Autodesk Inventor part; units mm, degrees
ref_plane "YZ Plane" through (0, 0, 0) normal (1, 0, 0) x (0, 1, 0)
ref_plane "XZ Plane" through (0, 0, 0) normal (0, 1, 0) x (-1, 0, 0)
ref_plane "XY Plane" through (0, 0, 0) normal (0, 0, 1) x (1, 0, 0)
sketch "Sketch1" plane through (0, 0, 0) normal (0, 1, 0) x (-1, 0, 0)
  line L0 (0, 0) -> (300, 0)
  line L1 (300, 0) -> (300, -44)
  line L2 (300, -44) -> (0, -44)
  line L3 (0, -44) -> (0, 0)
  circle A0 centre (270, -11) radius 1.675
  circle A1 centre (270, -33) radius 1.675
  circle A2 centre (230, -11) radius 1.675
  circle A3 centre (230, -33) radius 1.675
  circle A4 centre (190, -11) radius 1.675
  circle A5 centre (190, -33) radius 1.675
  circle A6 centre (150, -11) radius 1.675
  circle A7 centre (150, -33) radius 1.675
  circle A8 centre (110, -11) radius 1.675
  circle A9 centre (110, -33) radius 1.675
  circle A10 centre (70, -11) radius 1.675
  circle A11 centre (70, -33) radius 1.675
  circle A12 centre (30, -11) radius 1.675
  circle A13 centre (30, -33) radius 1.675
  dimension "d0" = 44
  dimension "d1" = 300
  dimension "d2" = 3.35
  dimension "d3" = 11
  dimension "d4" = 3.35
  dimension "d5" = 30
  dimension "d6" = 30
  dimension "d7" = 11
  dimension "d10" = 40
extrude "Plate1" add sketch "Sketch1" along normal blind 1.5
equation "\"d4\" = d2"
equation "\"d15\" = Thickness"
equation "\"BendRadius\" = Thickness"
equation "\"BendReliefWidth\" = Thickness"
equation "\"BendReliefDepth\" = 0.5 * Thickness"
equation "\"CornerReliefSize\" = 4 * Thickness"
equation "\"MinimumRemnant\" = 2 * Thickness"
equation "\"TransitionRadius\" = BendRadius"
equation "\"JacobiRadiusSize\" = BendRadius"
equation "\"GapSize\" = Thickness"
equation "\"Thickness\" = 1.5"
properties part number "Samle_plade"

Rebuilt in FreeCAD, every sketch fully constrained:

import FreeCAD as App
import Part
import Sketcher


def add_polygon(sketch, points):
    """Adds a closed chain of lines whose ends are joined by coincident constraints."""
    first, n = sketch.GeometryCount, len(points)
    for a, b in zip(points, points[1:] + points[:1]):
        sketch.addGeometry(Part.LineSegment(App.Vector(*a, 0), App.Vector(*b, 0)), False)
    for i in range(n):
        sketch.addConstraint(Sketcher.Constraint("Coincident", first + i, 2, first + (i + 1) % n, 1))

doc = App.newDocument("Part")
body = doc.addObject("PartDesign::Body", "Body")

sketch1 = body.newObject("Sketcher::SketchObject", "Sketch")
sketch1.AttachmentSupport = (doc.getObject("XZ_Plane"), [""])
sketch1.MapMode = "FlatFace"
add_polygon(sketch1, [(-300, 0), (0, 0), (0, -44), (-300, -44)])
sketch1.addGeometry(Part.Circle(App.Vector(-30, -33, 0), App.Vector(0, 0, 1), 1.675), False)
sketch1.addGeometry(Part.Circle(App.Vector(-70, -33, 0), App.Vector(0, 0, 1), 1.675), False)
sketch1.addGeometry(Part.Circle(App.Vector(-110, -33, 0), App.Vector(0, 0, 1), 1.675), False)
sketch1.addGeometry(Part.Circle(App.Vector(-150, -33, 0), App.Vector(0, 0, 1), 1.675), False)
sketch1.addGeometry(Part.Circle(App.Vector(-190, -33, 0), App.Vector(0, 0, 1), 1.675), False)
sketch1.addGeometry(Part.Circle(App.Vector(-230, -33, 0), App.Vector(0, 0, 1), 1.675), False)
sketch1.addGeometry(Part.Circle(App.Vector(-270, -33, 0), App.Vector(0, 0, 1), 1.675), False)
sketch1.addGeometry(Part.Circle(App.Vector(-30, -11, 0), App.Vector(0, 0, 1), 1.675), False)
sketch1.addGeometry(Part.Circle(App.Vector(-70, -11, 0), App.Vector(0, 0, 1), 1.675), False)
sketch1.addGeometry(Part.Circle(App.Vector(-110, -11, 0), App.Vector(0, 0, 1), 1.675), False)
sketch1.addGeometry(Part.Circle(App.Vector(-150, -11, 0), App.Vector(0, 0, 1), 1.675), False)
sketch1.addGeometry(Part.Circle(App.Vector(-190, -11, 0), App.Vector(0, 0, 1), 1.675), False)
sketch1.addGeometry(Part.Circle(App.Vector(-230, -11, 0), App.Vector(0, 0, 1), 1.675), False)
sketch1.addGeometry(Part.Circle(App.Vector(-270, -11, 0), App.Vector(0, 0, 1), 1.675), False)
sketch1.addConstraint(Sketcher.Constraint("Horizontal", 0))
sketch1.addConstraint(Sketcher.Constraint("Vertical", 1))
sketch1.addConstraint(Sketcher.Constraint("Horizontal", 2))
sketch1.addConstraint(Sketcher.Constraint("Vertical", 3))
sketch1.addConstraint(Sketcher.Constraint("Coincident", 0, 2, -1, 1))
sketch1.addConstraint(Sketcher.Constraint("Equal", 4, 5))
sketch1.addConstraint(Sketcher.Constraint("Equal", 5, 6))
sketch1.addConstraint(Sketcher.Constraint("Equal", 6, 7))
sketch1.addConstraint(Sketcher.Constraint("Equal", 7, 8))
sketch1.addConstraint(Sketcher.Constraint("Equal", 8, 9))
sketch1.addConstraint(Sketcher.Constraint("Equal", 9, 10))
sketch1.addConstraint(Sketcher.Constraint("Equal", 10, 11))
sketch1.addConstraint(Sketcher.Constraint("Equal", 11, 12))
sketch1.addConstraint(Sketcher.Constraint("Equal", 12, 13))
sketch1.addConstraint(Sketcher.Constraint("Equal", 13, 14))
sketch1.addConstraint(Sketcher.Constraint("Equal", 14, 15))
sketch1.addConstraint(Sketcher.Constraint("Equal", 15, 16))
sketch1.addConstraint(Sketcher.Constraint("Equal", 16, 17))
sketch1.addConstraint(Sketcher.Constraint("Horizontal", 4, 3, 5, 3))
sketch1.addConstraint(Sketcher.Constraint("Horizontal", 5, 3, 6, 3))
sketch1.addConstraint(Sketcher.Constraint("Horizontal", 6, 3, 7, 3))
sketch1.addConstraint(Sketcher.Constraint("Horizontal", 7, 3, 8, 3))
sketch1.addConstraint(Sketcher.Constraint("Horizontal", 8, 3, 9, 3))
sketch1.addConstraint(Sketcher.Constraint("Horizontal", 9, 3, 10, 3))
sketch1.addConstraint(Sketcher.Constraint("Horizontal", 11, 3, 12, 3))
sketch1.addConstraint(Sketcher.Constraint("Horizontal", 12, 3, 13, 3))
sketch1.addConstraint(Sketcher.Constraint("Horizontal", 13, 3, 14, 3))
sketch1.addConstraint(Sketcher.Constraint("Horizontal", 14, 3, 15, 3))
sketch1.addConstraint(Sketcher.Constraint("Horizontal", 15, 3, 16, 3))
sketch1.addConstraint(Sketcher.Constraint("Horizontal", 16, 3, 17, 3))
sketch1.addConstraint(Sketcher.Constraint("Vertical", 4, 3, 11, 3))
sketch1.addConstraint(Sketcher.Constraint("Vertical", 5, 3, 12, 3))
sketch1.addConstraint(Sketcher.Constraint("Vertical", 6, 3, 13, 3))
sketch1.addConstraint(Sketcher.Constraint("Vertical", 7, 3, 14, 3))
sketch1.addConstraint(Sketcher.Constraint("Vertical", 8, 3, 15, 3))
sketch1.addConstraint(Sketcher.Constraint("Vertical", 9, 3, 16, 3))
sketch1.addConstraint(Sketcher.Constraint("Vertical", 10, 3, 17, 3))
sketch1.addConstraint(Sketcher.Constraint("Diameter", 4, 3.35))
sketch1.addConstraint(Sketcher.Constraint("DistanceX", 0, 1, 0, 2, 300.0))
sketch1.addConstraint(Sketcher.Constraint("DistanceY", 1, 2, 1, 1, 44.0))
sketch1.addConstraint(Sketcher.Constraint("DistanceX", 4, 3, -1, 1, 30.0))
sketch1.addConstraint(Sketcher.Constraint("DistanceY", 11, 3, -1, 1, 11.0))
sketch1.addConstraint(Sketcher.Constraint("DistanceX", 5, 3, 4, 3, 40.0))
sketch1.addConstraint(Sketcher.Constraint("DistanceX", 6, 3, 5, 3, 40.0))
sketch1.addConstraint(Sketcher.Constraint("DistanceX", 7, 3, 6, 3, 40.0))
sketch1.addConstraint(Sketcher.Constraint("DistanceX", 8, 3, 7, 3, 40.0))
sketch1.addConstraint(Sketcher.Constraint("DistanceX", 9, 3, 8, 3, 40.0))
sketch1.addConstraint(Sketcher.Constraint("DistanceX", 10, 3, 9, 3, 40.0))
sketch1.addConstraint(Sketcher.Constraint("DistanceY", 1, 2, 4, 3, 11.0))
pad1 = body.newObject("PartDesign::Pad", "Pad")
pad1.Profile = sketch1
pad1.Length = 1.5
pad1.Reversed = True

doc.recompute()
